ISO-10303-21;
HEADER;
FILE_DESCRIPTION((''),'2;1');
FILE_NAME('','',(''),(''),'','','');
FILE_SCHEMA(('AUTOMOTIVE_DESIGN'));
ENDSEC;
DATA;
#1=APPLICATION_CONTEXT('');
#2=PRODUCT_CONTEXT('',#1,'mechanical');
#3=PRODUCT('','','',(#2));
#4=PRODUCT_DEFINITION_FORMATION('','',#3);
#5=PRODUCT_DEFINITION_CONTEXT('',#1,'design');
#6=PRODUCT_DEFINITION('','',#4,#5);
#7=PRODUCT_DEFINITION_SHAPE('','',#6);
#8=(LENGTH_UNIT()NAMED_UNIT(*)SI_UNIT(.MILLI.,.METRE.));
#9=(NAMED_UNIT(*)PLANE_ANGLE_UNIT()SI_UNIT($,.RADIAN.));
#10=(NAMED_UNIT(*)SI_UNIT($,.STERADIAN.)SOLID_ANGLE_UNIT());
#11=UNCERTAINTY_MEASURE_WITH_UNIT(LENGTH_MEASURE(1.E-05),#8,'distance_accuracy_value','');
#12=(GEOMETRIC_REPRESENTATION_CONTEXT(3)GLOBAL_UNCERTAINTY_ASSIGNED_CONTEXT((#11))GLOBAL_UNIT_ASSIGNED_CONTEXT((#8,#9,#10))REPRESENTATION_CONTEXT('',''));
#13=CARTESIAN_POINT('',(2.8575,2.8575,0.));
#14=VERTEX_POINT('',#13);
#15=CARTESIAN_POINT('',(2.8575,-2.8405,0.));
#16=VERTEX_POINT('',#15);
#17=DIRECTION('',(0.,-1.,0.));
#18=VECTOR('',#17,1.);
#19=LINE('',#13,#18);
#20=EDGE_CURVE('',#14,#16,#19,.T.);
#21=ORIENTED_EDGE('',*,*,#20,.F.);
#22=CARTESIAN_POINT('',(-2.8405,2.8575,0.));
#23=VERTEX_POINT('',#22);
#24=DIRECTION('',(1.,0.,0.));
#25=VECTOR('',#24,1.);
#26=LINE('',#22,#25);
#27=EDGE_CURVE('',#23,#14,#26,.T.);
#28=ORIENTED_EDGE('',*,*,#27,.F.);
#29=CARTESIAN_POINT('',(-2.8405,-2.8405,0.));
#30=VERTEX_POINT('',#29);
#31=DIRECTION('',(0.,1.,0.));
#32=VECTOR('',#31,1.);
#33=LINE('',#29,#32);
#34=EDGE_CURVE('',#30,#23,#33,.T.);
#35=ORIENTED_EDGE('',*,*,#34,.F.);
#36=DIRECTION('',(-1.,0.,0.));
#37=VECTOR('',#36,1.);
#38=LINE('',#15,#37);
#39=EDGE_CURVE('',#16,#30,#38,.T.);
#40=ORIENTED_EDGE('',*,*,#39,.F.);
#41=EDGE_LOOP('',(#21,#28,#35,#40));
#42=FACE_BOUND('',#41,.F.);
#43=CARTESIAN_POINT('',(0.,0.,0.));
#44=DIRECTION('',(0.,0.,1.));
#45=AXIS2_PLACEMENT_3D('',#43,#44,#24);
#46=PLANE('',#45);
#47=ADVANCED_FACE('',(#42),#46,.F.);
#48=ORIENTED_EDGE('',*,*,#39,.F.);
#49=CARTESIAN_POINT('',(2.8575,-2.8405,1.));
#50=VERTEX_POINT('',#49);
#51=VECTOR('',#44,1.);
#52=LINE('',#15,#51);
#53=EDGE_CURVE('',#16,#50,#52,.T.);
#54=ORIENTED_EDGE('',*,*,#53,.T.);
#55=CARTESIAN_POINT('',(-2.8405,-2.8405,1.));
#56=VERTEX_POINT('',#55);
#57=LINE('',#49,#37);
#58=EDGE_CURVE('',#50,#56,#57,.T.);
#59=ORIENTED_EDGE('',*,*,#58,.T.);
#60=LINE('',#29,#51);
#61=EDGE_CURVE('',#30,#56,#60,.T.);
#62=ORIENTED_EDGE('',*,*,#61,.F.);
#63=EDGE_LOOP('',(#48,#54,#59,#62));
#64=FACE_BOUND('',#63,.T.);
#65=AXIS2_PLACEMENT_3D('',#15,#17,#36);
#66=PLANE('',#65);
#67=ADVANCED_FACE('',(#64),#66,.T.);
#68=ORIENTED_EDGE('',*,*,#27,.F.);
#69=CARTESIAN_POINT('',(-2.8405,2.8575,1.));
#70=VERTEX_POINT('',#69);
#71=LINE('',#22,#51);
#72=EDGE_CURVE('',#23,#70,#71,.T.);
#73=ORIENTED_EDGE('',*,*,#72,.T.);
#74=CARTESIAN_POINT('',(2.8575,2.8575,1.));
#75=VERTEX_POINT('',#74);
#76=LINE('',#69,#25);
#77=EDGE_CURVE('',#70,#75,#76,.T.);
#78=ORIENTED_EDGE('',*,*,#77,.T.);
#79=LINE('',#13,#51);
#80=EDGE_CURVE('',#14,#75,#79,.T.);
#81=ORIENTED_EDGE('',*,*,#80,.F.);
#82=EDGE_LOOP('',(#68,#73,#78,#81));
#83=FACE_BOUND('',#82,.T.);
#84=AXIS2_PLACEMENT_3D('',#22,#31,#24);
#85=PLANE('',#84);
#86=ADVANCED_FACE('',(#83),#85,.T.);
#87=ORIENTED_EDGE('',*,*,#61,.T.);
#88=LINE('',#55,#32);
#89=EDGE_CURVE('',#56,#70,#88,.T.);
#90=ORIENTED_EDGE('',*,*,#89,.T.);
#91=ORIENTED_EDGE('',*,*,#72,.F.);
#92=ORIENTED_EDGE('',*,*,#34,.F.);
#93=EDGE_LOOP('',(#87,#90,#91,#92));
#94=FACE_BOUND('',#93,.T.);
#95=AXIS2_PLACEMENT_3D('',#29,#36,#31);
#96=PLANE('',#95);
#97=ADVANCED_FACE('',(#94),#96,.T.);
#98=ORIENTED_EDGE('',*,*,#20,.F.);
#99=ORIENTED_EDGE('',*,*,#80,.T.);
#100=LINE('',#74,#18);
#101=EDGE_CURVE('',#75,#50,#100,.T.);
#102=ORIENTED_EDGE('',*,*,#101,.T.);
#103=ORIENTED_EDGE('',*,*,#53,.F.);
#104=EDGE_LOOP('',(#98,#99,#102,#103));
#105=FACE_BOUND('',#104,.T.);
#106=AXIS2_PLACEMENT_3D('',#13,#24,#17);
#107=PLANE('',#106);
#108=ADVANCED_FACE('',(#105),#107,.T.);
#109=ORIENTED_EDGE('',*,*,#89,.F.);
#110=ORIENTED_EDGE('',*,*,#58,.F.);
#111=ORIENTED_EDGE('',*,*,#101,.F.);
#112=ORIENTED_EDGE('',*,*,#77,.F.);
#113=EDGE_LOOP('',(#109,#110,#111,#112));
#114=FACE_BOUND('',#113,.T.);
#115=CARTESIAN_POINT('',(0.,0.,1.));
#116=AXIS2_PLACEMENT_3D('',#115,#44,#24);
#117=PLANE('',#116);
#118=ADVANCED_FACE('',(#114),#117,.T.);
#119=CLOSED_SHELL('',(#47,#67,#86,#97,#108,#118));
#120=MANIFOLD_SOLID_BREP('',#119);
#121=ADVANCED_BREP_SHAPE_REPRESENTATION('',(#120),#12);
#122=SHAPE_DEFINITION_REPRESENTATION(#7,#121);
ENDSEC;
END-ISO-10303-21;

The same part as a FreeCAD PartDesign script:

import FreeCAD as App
import Part
import Sketcher

V = App.Vector


def add_polygon(sketch, points):
    """Adds a closed chain of lines whose ends are joined by coincident constraints."""
    first, n = sketch.GeometryCount, len(points)
    for a, b in zip(points, points[1:] + points[:1]):
        sketch.addGeometry(Part.LineSegment(App.Vector(*a, 0), App.Vector(*b, 0)), False)
    for i in range(n):
        sketch.addConstraint(Sketcher.Constraint("Coincident", first + i, 2, first + (i + 1) % n, 1))

doc = App.newDocument("Part")
params = doc.addObject("Spreadsheet::Sheet", "Params")
for row, (alias, value) in enumerate([
    ("pad1_length", "1 mm"),
], start=1):
    params.set(f"A{row}", alias)
    params.set(f"B{row}", "=" + value)
    params.setAlias(f"B{row}", alias)

body = doc.addObject("PartDesign::Body", "Body")

# Sketch on XY plane
sketch1 = doc.addObject("Sketcher::SketchObject", "Sketch")
body.addObject(sketch1)
sketch1.AttachmentSupport = (doc.XY_Plane, [""])
sketch1.MapMode = "FlatFace"
add_polygon(sketch1, [(-3, 3), (-3, -3), (3, -3), (3, 3)])  # lines 0-3
sketch1.addConstraint([
    Sketcher.Constraint("Vertical", 0),
    Sketcher.Constraint("Horizontal", 1),
    Sketcher.Constraint("Vertical", 2),
    Sketcher.Constraint("Horizontal", 3),
    Sketcher.Constraint("Equal", 3, 0),
    Sketcher.Constraint("DistanceX", 1, 1, 1, 2, 5.698),
    Sketcher.Constraint("DistanceX", 0, 2, -1, 1, 2.8405),
    Sketcher.Constraint("DistanceY", 0, 2, -1, 1, 2.8405),
])
pad1 = doc.addObject("PartDesign::Pad", "Pad")
body.addObject(pad1)
pad1.Profile = sketch1
pad1.setExpression("Length", "Params.pad1_length")

doc.recompute()
